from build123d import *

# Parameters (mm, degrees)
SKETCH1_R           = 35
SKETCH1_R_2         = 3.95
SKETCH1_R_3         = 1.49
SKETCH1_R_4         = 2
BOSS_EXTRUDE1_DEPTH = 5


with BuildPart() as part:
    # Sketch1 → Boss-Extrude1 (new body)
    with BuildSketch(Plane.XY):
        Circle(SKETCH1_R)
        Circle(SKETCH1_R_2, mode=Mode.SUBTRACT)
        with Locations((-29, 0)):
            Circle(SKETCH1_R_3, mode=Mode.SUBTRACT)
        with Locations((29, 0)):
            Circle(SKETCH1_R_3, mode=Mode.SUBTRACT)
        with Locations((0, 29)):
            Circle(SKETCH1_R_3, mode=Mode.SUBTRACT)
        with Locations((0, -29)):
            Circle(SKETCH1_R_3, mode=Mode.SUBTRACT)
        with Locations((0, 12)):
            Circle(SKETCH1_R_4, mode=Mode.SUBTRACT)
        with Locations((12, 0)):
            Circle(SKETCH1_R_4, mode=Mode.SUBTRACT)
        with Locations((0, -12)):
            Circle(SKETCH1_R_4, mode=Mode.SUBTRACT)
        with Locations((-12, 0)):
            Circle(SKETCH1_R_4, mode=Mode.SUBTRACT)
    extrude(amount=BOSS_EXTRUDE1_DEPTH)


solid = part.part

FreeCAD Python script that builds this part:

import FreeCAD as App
import Part
import Sketcher

doc = App.newDocument("Part")
params = doc.addObject("Spreadsheet::Sheet", "Params")
for row, (alias, value) in enumerate([
    ("sketch1_diameter", "70 mm"),
    ("sketch1_diameter2", "4 mm"),
    ("sketch1_diameter3", "7.9 mm"),
    ("sketch1_diameter4", "2.98 mm"),
    ("pad1_length", "5 mm"),
], start=1):
    params.set(f"A{row}", alias)
    params.set(f"B{row}", "=" + value)
    params.setAlias(f"B{row}", alias)

body = doc.addObject("PartDesign::Body", "Body")

sketch1 = doc.addObject("Sketcher::SketchObject", "Sketch")
body.addObject(sketch1)
sketch1.AttachmentSupport = (doc.XY_Plane, [""])
sketch1.MapMode = "FlatFace"
sketch1.addGeometry([
    Part.Circle(App.Vector(0, 0, 0), App.Vector(0, 0, 1), 35),
    Part.Circle(App.Vector(0, -29, 0), App.Vector(0, 0, 1), 1.5),
    Part.Circle(App.Vector(0, -12, 0), App.Vector(0, 0, 1), 2),
    Part.Circle(App.Vector(-29, 0, 0), App.Vector(0, 0, 1), 1.5),
    Part.Circle(App.Vector(-12, 0, 0), App.Vector(0, 0, 1), 2),
    Part.Circle(App.Vector(0, 0, 0), App.Vector(0, 0, 1), 4),
    Part.Circle(App.Vector(12, 0, 0), App.Vector(0, 0, 1), 2),
    Part.Circle(App.Vector(0, 12, 0), App.Vector(0, 0, 1), 2),
    Part.Circle(App.Vector(29, 0, 0), App.Vector(0, 0, 1), 1.5),
    Part.Circle(App.Vector(0, 29, 0), App.Vector(0, 0, 1), 1.5),
], False)
sketch1.addConstraint([
    Sketcher.Constraint("Coincident", 0, 3, -1, 1),
    Sketcher.Constraint("Coincident", 5, 3, -1, 1),
    Sketcher.Constraint("Equal", 1, 3),
    Sketcher.Constraint("Equal", 2, 4),
    Sketcher.Constraint("Equal", 4, 6),
    Sketcher.Constraint("Equal", 6, 7),
    Sketcher.Constraint("Equal", 3, 8),
    Sketcher.Constraint("Equal", 8, 9),
    Sketcher.Constraint("Symmetric", 4, 3, 6, 3, -1, 1),
    Sketcher.Constraint("Symmetric", 2, 3, 7, 3, -1, 1),
    Sketcher.Constraint("Symmetric", 3, 3, 8, 3, -1, 1),
    Sketcher.Constraint("Symmetric", 1, 3, 9, 3, -1, 1),
    Sketcher.Constraint("PointOnObject", 1, 3, -2),
    Sketcher.Constraint("PointOnObject", 2, 3, -2),
    Sketcher.Constraint("PointOnObject", 3, 3, -1),
    Sketcher.Constraint("PointOnObject", 4, 3, -1),
    Sketcher.Constraint("Diameter", 0, 70.0),
    Sketcher.Constraint("Diameter", 2, 4.0),
    Sketcher.Constraint("Diameter", 5, 7.9),
    Sketcher.Constraint("Diameter", 1, 2.98),
    Sketcher.Constraint("DistanceY", 1, 3, -1, 1, 29.0),
    Sketcher.Constraint("DistanceY", 2, 3, -1, 1, 12.0),
    Sketcher.Constraint("DistanceX", 3, 3, -1, 1, 29.0),
    Sketcher.Constraint("DistanceX", 4, 3, -1, 1, 12.0),
])
sketch1.setExpression("Constraints[16]", "Params.sketch1_diameter")
sketch1.setExpression("Constraints[17]", "Params.sketch1_diameter2")
sketch1.setExpression("Constraints[18]", "Params.sketch1_diameter3")
sketch1.setExpression("Constraints[19]", "Params.sketch1_diameter4")
pad1 = doc.addObject("PartDesign::Pad", "Pad")
body.addObject(pad1)
pad1.Profile = sketch1
pad1.setExpression("Length", "Params.pad1_length")

doc.recompute()
